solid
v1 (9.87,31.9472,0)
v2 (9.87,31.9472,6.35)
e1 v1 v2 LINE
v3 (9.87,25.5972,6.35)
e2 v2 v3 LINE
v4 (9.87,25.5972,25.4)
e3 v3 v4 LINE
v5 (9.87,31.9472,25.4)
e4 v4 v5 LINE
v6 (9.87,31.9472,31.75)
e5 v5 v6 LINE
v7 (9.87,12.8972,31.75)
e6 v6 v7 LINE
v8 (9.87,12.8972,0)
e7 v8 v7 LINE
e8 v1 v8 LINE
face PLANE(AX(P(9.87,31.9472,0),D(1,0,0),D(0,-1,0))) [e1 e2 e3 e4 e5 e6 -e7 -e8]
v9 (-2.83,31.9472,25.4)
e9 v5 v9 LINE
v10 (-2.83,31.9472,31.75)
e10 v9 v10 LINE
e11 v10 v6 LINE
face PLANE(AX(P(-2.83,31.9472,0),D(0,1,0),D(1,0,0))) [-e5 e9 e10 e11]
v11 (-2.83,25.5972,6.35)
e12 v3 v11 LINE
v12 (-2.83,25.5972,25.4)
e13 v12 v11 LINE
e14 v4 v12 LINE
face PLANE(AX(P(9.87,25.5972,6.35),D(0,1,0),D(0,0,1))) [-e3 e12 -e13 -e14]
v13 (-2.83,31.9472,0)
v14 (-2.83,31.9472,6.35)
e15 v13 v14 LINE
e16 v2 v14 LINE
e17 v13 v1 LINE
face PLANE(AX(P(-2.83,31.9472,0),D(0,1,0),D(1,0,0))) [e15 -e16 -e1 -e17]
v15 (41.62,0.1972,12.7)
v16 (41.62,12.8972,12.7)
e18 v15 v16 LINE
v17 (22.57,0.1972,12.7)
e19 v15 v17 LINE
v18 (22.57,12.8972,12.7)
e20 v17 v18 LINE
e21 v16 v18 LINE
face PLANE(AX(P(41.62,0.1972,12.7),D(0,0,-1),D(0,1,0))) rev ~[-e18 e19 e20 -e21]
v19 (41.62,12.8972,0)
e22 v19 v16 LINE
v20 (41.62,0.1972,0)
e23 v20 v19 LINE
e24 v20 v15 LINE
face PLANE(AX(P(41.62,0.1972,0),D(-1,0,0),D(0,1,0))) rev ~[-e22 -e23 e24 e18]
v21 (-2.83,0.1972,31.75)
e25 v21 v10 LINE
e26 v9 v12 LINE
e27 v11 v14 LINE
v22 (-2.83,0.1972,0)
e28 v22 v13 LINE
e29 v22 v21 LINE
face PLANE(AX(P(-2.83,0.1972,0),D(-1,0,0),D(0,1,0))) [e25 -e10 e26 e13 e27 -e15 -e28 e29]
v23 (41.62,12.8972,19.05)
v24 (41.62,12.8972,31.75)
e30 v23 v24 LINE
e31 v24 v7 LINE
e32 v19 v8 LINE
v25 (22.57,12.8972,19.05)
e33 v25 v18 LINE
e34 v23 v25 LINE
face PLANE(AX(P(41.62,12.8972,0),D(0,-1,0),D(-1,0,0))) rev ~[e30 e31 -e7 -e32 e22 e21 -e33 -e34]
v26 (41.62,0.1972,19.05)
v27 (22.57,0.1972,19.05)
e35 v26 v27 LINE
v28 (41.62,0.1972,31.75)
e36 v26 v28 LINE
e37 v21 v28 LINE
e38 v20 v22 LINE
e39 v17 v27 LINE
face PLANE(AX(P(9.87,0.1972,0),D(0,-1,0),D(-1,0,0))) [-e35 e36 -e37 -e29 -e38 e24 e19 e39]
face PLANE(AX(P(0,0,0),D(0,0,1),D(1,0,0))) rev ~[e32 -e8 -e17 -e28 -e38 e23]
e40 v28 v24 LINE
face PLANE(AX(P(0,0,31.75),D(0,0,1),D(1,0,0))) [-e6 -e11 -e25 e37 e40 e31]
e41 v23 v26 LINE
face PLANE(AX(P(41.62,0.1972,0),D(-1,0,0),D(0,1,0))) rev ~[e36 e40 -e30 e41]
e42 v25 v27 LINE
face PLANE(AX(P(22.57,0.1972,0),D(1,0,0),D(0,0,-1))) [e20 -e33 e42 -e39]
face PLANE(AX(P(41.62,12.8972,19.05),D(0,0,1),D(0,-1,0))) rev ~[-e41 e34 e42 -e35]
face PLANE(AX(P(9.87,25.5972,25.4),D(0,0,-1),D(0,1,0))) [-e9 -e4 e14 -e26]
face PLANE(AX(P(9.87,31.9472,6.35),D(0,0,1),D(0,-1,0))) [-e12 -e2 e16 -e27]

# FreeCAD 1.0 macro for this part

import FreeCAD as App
import Part
import Sketcher

V = App.Vector
Q = App.Units.Quantity


def add_polygon(sketch, points):
    """Adds a closed chain of lines whose ends are joined by coincident constraints."""
    first, n = sketch.GeometryCount, len(points)
    for a, b in zip(points, points[1:] + points[:1]):
        sketch.addGeometry(Part.LineSegment(App.Vector(*a, 0), App.Vector(*b, 0)), False)
    for i in range(n):
        sketch.addConstraint(Sketcher.Constraint("Coincident", first + i, 2, first + (i + 1) % n, 1))

doc = App.newDocument("Part")
params = doc.addObject("Spreadsheet::Sheet", "Params")
for row, (alias, value) in enumerate([
    ("sketch1_width", "0.5 in"),
    ("sketch1_width2", "1.75 in"),
    ("pad1_length", "1.25 in"),
    ("sketch2_height", "0.25 in"),
    ("sketch2_width", "0.5 in"),
    ("pocket1_length", "0.75 in"),
    ("sketch3_width", "0.25 in"),
], start=1):
    params.set(f"A{row}", alias)
    params.set(f"B{row}", "=" + value)
    params.setAlias(f"B{row}", alias)

body = doc.addObject("PartDesign::Body", "Body")

# Sketch on XY plane
sketch1 = body.newObject("Sketcher::SketchObject", "Sketch")
sketch1.AttachmentSupport = (doc.getObject("XY_Plane"), [""])
sketch1.MapMode = "FlatFace"
add_polygon(sketch1, [(10, 32), (-3, 32), (-3, 0), (42, 0), (42, 13), (10, 13)])  # lines 0-5
sketch1.addConstraint(Sketcher.Constraint("Horizontal", 0))
sketch1.addConstraint(Sketcher.Constraint("Vertical", 1))
sketch1.addConstraint(Sketcher.Constraint("Horizontal", 2))
sketch1.addConstraint(Sketcher.Constraint("Vertical", 3))
sketch1.addConstraint(Sketcher.Constraint("Horizontal", 4))
sketch1.addConstraint(Sketcher.Constraint("Vertical", 5))
sketch1.addConstraint(Sketcher.Constraint("Equal", 4, 1))
sketch1.addConstraint(Sketcher.Constraint("Equal", 0, 3))
sketch1.addConstraint(Sketcher.Constraint("DistanceX", 0, 2, 0, 1, Q("0.5 in")))
sketch1.addConstraint(Sketcher.Constraint("DistanceX", 2, 1, 2, 2, Q("1.75 in")))
sketch1.addConstraint(Sketcher.Constraint("DistanceX", 0, 2, -1, 1, 2.83))
sketch1.addConstraint(Sketcher.Constraint("DistanceY", -1, 1, 0, 2, 31.9472))
sketch1.setExpression("Constraints[14]", "Params.sketch1_width")
sketch1.setExpression("Constraints[15]", "Params.sketch1_width2")
pad1 = body.newObject("PartDesign::Pad", "Pad")
pad1.Profile = sketch1
pad1.setExpression("Length", "Params.pad1_length")

# Sketch on YZ plane
sketch2 = body.newObject("Sketcher::SketchObject", "Sketch001")
sketch2.AttachmentSupport = (doc.getObject("YZ_Plane"), [""])
sketch2.MapMode = "FlatFace"
sketch2.AttachmentOffset = App.Placement(V(0, 0, 41.62), App.Rotation())
add_polygon(sketch2, [(13, 19), (0, 19), (0, 13), (13, 13)])  # lines 0-3
sketch2.addConstraint(Sketcher.Constraint("Horizontal", 0))
sketch2.addConstraint(Sketcher.Constraint("Vertical", 1))
sketch2.addConstraint(Sketcher.Constraint("Horizontal", 2))
sketch2.addConstraint(Sketcher.Constraint("Vertical", 3))
sketch2.addConstraint(Sketcher.Constraint("DistanceY", 1, 2, 1, 1, Q("0.25 in")))
sketch2.addConstraint(Sketcher.Constraint("DistanceX", 0, 2, 0, 1, Q("0.5 in")))
sketch2.addConstraint(Sketcher.Constraint("DistanceY", -1, 1, 1, 2, Q("0.5 in")))
sketch2.addConstraint(Sketcher.Constraint("DistanceX", -1, 1, 0, 2, 0.1972))
sketch2.setExpression("Constraints[8]", "Params.sketch2_height")
sketch2.setExpression("Constraints[9]", "Params.sketch2_width")
pocket1 = body.newObject("PartDesign::Pocket", "Pocket")
pocket1.Profile = sketch2
pocket1.setExpression("Length", "Params.pocket1_length")

# Sketch on YZ plane
sketch3 = body.newObject("Sketcher::SketchObject", "Sketch002")
sketch3.AttachmentSupport = (doc.getObject("YZ_Plane"), [""])
sketch3.MapMode = "FlatFace"
sketch3.AttachmentOffset = App.Placement(V(0, 0, 9.87), App.Rotation())
add_polygon(sketch3, [(26, 6), (32, 6), (32, 25), (26, 25)])  # lines 0-3
sketch3.addConstraint(Sketcher.Constraint("Horizontal", 0))
sketch3.addConstraint(Sketcher.Constraint("Vertical", 1))
sketch3.addConstraint(Sketcher.Constraint("Horizontal", 2))
sketch3.addConstraint(Sketcher.Constraint("Vertical", 3))
sketch3.addConstraint(Sketcher.Constraint("DistanceX", 0, 1, 0, 2, Q("0.25 in")))
sketch3.addConstraint(Sketcher.Constraint("DistanceY", -1, 1, 0, 2, Q("0.25 in")))
sketch3.addConstraint(Sketcher.Constraint("DistanceY", -1, 1, 1, 2, Q("1 in")))
sketch3.addConstraint(Sketcher.Constraint("DistanceX", -1, 1, 0, 2, 31.9472))
sketch3.setExpression("Constraints[8]", "Params.sketch3_width")
pocket2 = body.newObject("PartDesign::Pocket", "Pocket001")
pocket2.Profile = sketch3
pocket2.Type = "ThroughAll"

doc.recompute()
